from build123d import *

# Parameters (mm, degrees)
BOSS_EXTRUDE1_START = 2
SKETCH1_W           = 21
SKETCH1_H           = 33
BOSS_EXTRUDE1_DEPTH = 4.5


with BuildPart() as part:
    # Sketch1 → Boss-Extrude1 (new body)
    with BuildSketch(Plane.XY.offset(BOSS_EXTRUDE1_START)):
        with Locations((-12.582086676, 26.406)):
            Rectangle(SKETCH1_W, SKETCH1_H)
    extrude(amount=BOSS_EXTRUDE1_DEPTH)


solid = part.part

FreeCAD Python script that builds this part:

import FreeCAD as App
import Part
import Sketcher

V = App.Vector


def add_polygon(sketch, points):
    """Adds a closed chain of lines whose ends are joined by coincident constraints."""
    first, n = sketch.GeometryCount, len(points)
    for a, b in zip(points, points[1:] + points[:1]):
        sketch.addGeometry(Part.LineSegment(App.Vector(*a, 0), App.Vector(*b, 0)), False)
    for i in range(n):
        sketch.addConstraint(Sketcher.Constraint("Coincident", first + i, 2, first + (i + 1) % n, 1))

doc = App.newDocument("Part")
body = doc.addObject("PartDesign::Body", "Body")

# Sketch on XY plane
sketch1 = doc.addObject("Sketcher::SketchObject", "Sketch")
body.addObject(sketch1)
sketch1.AttachmentSupport = (doc.XY_Plane, [""])
sketch1.MapMode = "FlatFace"
sketch1.AttachmentOffset = App.Placement(V(0, 0, 2), App.Rotation())
add_polygon(sketch1, [(-23.082087, 42.906), (-23.082087, 9.906), (-2.082087, 9.906), (-2.082087, 42.906)])  # lines 0-3
sketch1.addConstraint([
    Sketcher.Constraint("Vertical", 0),
    Sketcher.Constraint("Horizontal", 1),
    Sketcher.Constraint("Vertical", 2),
    Sketcher.Constraint("Horizontal", 3),
    Sketcher.Constraint("DistanceX", 1, 1, 1, 2, 21.0),
    Sketcher.Constraint("DistanceY", 0, 2, 0, 1, 33.0),
    Sketcher.Constraint("DistanceY", -1, 1, 0, 2, 9.906),
    Sketcher.Constraint("DistanceX", 0, 2, -1, 1, 23.082087),
])
pad1 = doc.addObject("PartDesign::Pad", "Pad")
body.addObject(pad1)
pad1.Profile = sketch1
pad1.Length = 4.5

doc.recompute()
